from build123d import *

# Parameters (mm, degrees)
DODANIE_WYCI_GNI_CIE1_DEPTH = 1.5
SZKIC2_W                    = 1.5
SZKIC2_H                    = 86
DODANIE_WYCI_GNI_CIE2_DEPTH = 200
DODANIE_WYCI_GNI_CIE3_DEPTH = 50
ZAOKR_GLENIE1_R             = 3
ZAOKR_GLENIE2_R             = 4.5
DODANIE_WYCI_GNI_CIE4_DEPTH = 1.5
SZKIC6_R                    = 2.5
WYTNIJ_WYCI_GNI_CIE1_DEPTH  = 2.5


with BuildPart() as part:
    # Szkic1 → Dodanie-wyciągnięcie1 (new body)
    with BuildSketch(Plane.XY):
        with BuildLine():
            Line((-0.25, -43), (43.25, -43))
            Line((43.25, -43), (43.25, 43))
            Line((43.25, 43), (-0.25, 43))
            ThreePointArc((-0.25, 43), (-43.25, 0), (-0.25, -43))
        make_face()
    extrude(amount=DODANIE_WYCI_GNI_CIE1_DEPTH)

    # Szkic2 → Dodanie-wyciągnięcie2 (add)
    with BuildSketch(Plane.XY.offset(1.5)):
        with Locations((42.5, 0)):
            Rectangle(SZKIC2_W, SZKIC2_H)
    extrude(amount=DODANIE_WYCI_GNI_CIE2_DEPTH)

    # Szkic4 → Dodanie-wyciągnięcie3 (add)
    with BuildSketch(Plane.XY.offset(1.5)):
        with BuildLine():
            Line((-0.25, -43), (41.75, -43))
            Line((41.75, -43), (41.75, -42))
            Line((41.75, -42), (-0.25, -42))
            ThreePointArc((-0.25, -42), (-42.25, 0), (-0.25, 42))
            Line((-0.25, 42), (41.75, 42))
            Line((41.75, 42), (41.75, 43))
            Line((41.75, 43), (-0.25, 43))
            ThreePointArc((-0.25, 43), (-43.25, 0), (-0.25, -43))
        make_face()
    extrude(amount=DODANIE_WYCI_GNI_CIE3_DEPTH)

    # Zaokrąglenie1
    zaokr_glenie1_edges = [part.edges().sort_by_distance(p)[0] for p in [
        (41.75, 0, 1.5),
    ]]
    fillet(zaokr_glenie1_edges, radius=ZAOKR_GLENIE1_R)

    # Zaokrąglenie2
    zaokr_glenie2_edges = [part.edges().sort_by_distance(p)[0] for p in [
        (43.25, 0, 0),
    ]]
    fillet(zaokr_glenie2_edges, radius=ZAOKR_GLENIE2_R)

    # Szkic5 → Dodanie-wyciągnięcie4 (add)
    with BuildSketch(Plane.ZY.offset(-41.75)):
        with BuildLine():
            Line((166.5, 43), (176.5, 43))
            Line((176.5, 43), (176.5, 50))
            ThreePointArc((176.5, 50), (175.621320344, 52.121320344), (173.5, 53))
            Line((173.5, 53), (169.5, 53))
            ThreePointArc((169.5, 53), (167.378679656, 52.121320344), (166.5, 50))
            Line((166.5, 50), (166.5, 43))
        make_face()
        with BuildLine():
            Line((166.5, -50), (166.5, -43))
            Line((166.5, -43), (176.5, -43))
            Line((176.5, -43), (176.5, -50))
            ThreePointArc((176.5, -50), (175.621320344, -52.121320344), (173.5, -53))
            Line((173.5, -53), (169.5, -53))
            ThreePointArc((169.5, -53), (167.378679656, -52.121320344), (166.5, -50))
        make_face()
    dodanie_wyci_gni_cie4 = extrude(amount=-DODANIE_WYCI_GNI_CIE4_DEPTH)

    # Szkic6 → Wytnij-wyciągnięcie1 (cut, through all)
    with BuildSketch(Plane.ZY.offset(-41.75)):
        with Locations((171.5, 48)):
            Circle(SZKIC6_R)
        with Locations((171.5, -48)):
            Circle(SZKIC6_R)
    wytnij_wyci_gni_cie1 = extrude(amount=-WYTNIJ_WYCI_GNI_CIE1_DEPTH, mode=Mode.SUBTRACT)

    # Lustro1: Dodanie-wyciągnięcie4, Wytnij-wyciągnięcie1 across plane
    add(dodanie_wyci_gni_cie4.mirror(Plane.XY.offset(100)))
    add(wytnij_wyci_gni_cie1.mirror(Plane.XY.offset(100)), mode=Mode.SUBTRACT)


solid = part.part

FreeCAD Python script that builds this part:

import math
import FreeCAD as App
import Part
import Sketcher
from FreeCAD import Vector
Q = App.Units.Quantity


def edges_at(feature, points):
    """Names of the edges that pass closest to the given points."""
    edges = feature.Shape.Edges
    near = lambda p: min(range(len(edges)), key=lambda i: edges[i].distToShape(Part.Vertex(*p))[0])
    return sorted({f"Edge{near(p) + 1}" for p in points})


def add_polygon(sketch, points):
    """Adds a closed chain of lines whose ends are joined by coincident constraints."""
    first, n = sketch.GeometryCount, len(points)
    for a, b in zip(points, points[1:] + points[:1]):
        sketch.addGeometry(Part.LineSegment(App.Vector(*a, 0), App.Vector(*b, 0)), False)
    for i in range(n):
        sketch.addConstraint(Sketcher.Constraint("Coincident", first + i, 2, first + (i + 1) % n, 1))

doc = App.newDocument("Part")
body = doc.addObject("PartDesign::Body", "Body")

# Sketch on XY plane
sketch1 = body.newObject("Sketcher::SketchObject", "Sketch")
sketch1.AttachmentSupport = (doc.getObject("XY_Plane"), [""])
sketch1.MapMode = "FlatFace"
sketch1.addGeometry([
    Part.LineSegment(Vector(0, -43, 0), Vector(43, -43, 0)),
    Part.LineSegment(Vector(43, -43, 0), Vector(43, 43, 0)),
    Part.LineSegment(Vector(43, 43, 0), Vector(0, 43, 0)),
    Part.ArcOfCircle(Part.Circle(Vector(0, 0, 0), Vector(0, 0, 1), 43), math.radians(90), math.radians(270)),
], False)
sketch1.addConstraint([
    Sketcher.Constraint("Coincident", 0, 2, 1, 1),
    Sketcher.Constraint("Coincident", 1, 2, 2, 1),
    Sketcher.Constraint("Tangent", 2, 2, 3, 1),
    Sketcher.Constraint("Tangent", 3, 2, 0, 1),
    Sketcher.Constraint("Horizontal", 0),
    Sketcher.Constraint("Vertical", 1),
    Sketcher.Constraint("Horizontal", 2),
    Sketcher.Constraint("PointOnObject", 3, 3, -1),
    Sketcher.Constraint("Radius", 3, Q("43 mm")),
    Sketcher.Constraint("DistanceX", 0, 1, 0, 2, Q("43.5 mm")),
    Sketcher.Constraint("DistanceX", 3, 3, -1, 1, Q("0.25 mm")),
])
pad1 = body.newObject("PartDesign::Pad", "Pad")
pad1.Profile = sketch1
pad1.Length = 1.5

# Sketch on XY plane
sketch2 = body.newObject("Sketcher::SketchObject", "Sketch001")
sketch2.AttachmentSupport = (doc.getObject("XY_Plane"), [""])
sketch2.MapMode = "FlatFace"
sketch2.AttachmentOffset = App.Placement(Vector(0, 0, 1.5), App.Rotation())
add_polygon(sketch2, [(41.8, 43), (41.8, -43), (43.2, -43), (43.2, 43)])  # lines 0-3
sketch2.addConstraint([
    Sketcher.Constraint("Vertical", 0),
    Sketcher.Constraint("Horizontal", 1),
    Sketcher.Constraint("Vertical", 2),
    Sketcher.Constraint("Horizontal", 3),
    Sketcher.Constraint("DistanceY", 0, 2, 0, 1, Q("86 mm")),
    Sketcher.Constraint("DistanceX", 1, 1, 1, 2, Q("1.5 mm")),
    Sketcher.Constraint("DistanceY", 0, 2, -1, 1, Q("43 mm")),
    Sketcher.Constraint("DistanceX", -1, 1, 0, 2, Q("41.75 mm")),
])
pad2 = body.newObject("PartDesign::Pad", "Pad001")
pad2.Profile = sketch2
pad2.Length = 200

# Sketch on XY plane
sketch3 = body.newObject("Sketcher::SketchObject", "Sketch002")
sketch3.AttachmentSupport = (doc.getObject("XY_Plane"), [""])
sketch3.MapMode = "FlatFace"
sketch3.AttachmentOffset = App.Placement(Vector(0, 0, 1.5), App.Rotation())
sketch3.addGeometry([
    Part.LineSegment(Vector(-0.2, -43, 0), Vector(41.8, -43, 0)),  # 0
    Part.LineSegment(Vector(41.8, -43, 0), Vector(41.8, -42, 0)),  # 1
    Part.LineSegment(Vector(41.8, -42, 0), Vector(-0.2, -42, 0)),  # 2
    Part.ArcOfCircle(Part.Circle(Vector(-0.2, 0, 0), Vector(0, 0, 1), 42), math.radians(90), math.radians(270)),  # 3
    Part.LineSegment(Vector(-0.2, 42, 0), Vector(41.8, 42, 0)),  # 4
    Part.LineSegment(Vector(41.8, 42, 0), Vector(41.8, 43, 0)),  # 5
    Part.LineSegment(Vector(41.8, 43, 0), Vector(-0.2, 43, 0)),  # 6
    Part.ArcOfCircle(Part.Circle(Vector(-0.2, 0, 0), Vector(0, 0, 1), 43), math.radians(90), math.radians(270)),  # 7
], False)
sketch3.addConstraint([
    Sketcher.Constraint("Coincident", 0, 2, 1, 1),
    Sketcher.Constraint("Coincident", 1, 2, 2, 1),
    Sketcher.Constraint("Tangent", 2, 2, 3, 2),
    Sketcher.Constraint("Tangent", 3, 1, 4, 1),
    Sketcher.Constraint("Coincident", 4, 2, 5, 1),
    Sketcher.Constraint("Coincident", 5, 2, 6, 1),
    Sketcher.Constraint("Tangent", 6, 2, 7, 1),
    Sketcher.Constraint("Tangent", 7, 2, 0, 1),
    Sketcher.Constraint("Horizontal", 0),
    Sketcher.Constraint("Vertical", 1),
    Sketcher.Constraint("Horizontal", 2),
    Sketcher.Constraint("Horizontal", 4),
    Sketcher.Constraint("Vertical", 5),
    Sketcher.Constraint("Horizontal", 6),
    Sketcher.Constraint("Coincident", 7, 3, 3, 3),
    Sketcher.Constraint("Symmetric", 1, 2, 4, 2, -1),
    Sketcher.Constraint("Radius", 3, Q("42 mm")),
    Sketcher.Constraint("Radius", 7, Q("43 mm")),
    Sketcher.Constraint("DistanceX", 0, 1, 0, 2, Q("42 mm")),
    Sketcher.Constraint("DistanceX", 3, 3, -1, 1, Q("0.25 mm")),
])
pad3 = body.newObject("PartDesign::Pad", "Pad002")
pad3.Profile = sketch3
pad3.Length = 50
doc.recompute()

fillet = body.newObject("PartDesign::Fillet", "Fillet")
fillet.Base = (pad3, edges_at(pad3, [(41.75, 0, 1.5)]))
fillet.Radius = 3
doc.recompute()

fillet2 = body.newObject("PartDesign::Fillet", "Fillet001")
fillet2.Base = (fillet, edges_at(fillet, [(43.25, 0, 0)]))
fillet2.Radius = 4.5

# Sketch on YZ plane
sketch4 = body.newObject("Sketcher::SketchObject", "Sketch003")
sketch4.AttachmentSupport = (doc.getObject("YZ_Plane"), [""])
sketch4.MapMode = "FlatFace"
sketch4.AttachmentOffset = App.Placement(Vector(0, 0, 41.75), App.Rotation())
sketch4.addGeometry([
    Part.LineSegment(Vector(43, 166.5, 0), Vector(43, 176.5, 0)),  # 0
    Part.LineSegment(Vector(43, 176.5, 0), Vector(50, 176.5, 0)),  # 1
    Part.ArcOfCircle(Part.Circle(Vector(50, 173.5, 0), Vector(0, 0, 1), 3), math.radians(0), math.radians(90)),  # 2
    Part.LineSegment(Vector(53, 173.5, 0), Vector(53, 169.5, 0)),  # 3
    Part.ArcOfCircle(Part.Circle(Vector(50, 169.5, 0), Vector(0, 0, 1), 3), math.radians(-90), math.radians(0)),  # 4
    Part.LineSegment(Vector(50, 166.5, 0), Vector(43, 166.5, 0)),  # 5
    Part.LineSegment(Vector(-43, 166.5, 0), Vector(-50, 166.5, 0)),  # 6
    Part.ArcOfCircle(Part.Circle(Vector(-50, 169.5, 0), Vector(0, 0, 1), 3), math.radians(180), math.radians(270)),  # 7
    Part.LineSegment(Vector(-53, 169.5, 0), Vector(-53, 173.5, 0)),  # 8
    Part.ArcOfCircle(Part.Circle(Vector(-50, 173.5, 0), Vector(0, 0, 1), 3), math.radians(90), math.radians(180)),  # 9
    Part.LineSegment(Vector(-50, 176.5, 0), Vector(-43, 176.5, 0)),  # 10
    Part.LineSegment(Vector(-43, 176.5, 0), Vector(-43, 166.5, 0)),  # 11
], False)
sketch4.addConstraint([
    Sketcher.Constraint("Coincident", 0, 2, 1, 1),
    Sketcher.Constraint("Tangent", 1, 2, 2, 2),
    Sketcher.Constraint("Tangent", 2, 1, 3, 1),
    Sketcher.Constraint("Tangent", 3, 2, 4, 2),
    Sketcher.Constraint("Tangent", 4, 1, 5, 1),
    Sketcher.Constraint("Coincident", 5, 2, 0, 1),
    Sketcher.Constraint("Tangent", 6, 2, 7, 2),
    Sketcher.Constraint("Tangent", 7, 1, 8, 1),
    Sketcher.Constraint("Tangent", 8, 2, 9, 2),
    Sketcher.Constraint("Tangent", 9, 1, 10, 1),
    Sketcher.Constraint("Coincident", 10, 2, 11, 1),
    Sketcher.Constraint("Coincident", 11, 2, 6, 1),
    Sketcher.Constraint("Vertical", 0),
    Sketcher.Constraint("Horizontal", 1),
    Sketcher.Constraint("Vertical", 3),
    Sketcher.Constraint("Horizontal", 5),
    Sketcher.Constraint("Horizontal", 6),
    Sketcher.Constraint("Vertical", 8),
    Sketcher.Constraint("Horizontal", 10),
    Sketcher.Constraint("Vertical", 11),
    Sketcher.Constraint("Equal", 2, 4),
    Sketcher.Constraint("Equal", 4, 7),
    Sketcher.Constraint("Equal", 7, 9),
    Sketcher.Constraint("Symmetric", 4, 3, 7, 3, -2),
    Sketcher.Constraint("Symmetric", 0, 2, 10, 2, -2),
    Sketcher.Constraint("Radius", 2, Q("3 mm")),
    Sketcher.Constraint("DistanceX", 1, 1, 1, 2, Q("7 mm")),
    Sketcher.Constraint("DistanceY", 0, 1, 0, 2, Q("10 mm")),
    Sketcher.Constraint("DistanceX", -1, 1, 2, 3, Q("50 mm")),
    Sketcher.Constraint("DistanceY", -1, 1, 2, 3, Q("173.5 mm")),
])
pad4 = body.newObject("PartDesign::Pad", "Pad003")
pad4.Profile = sketch4
pad4.Length = 1.5

# Sketch on YZ plane
sketch5 = body.newObject("Sketcher::SketchObject", "Sketch004")
sketch5.AttachmentSupport = (doc.getObject("YZ_Plane"), [""])
sketch5.MapMode = "FlatFace"
sketch5.AttachmentOffset = App.Placement(Vector(0, 0, 41.75), App.Rotation())
sketch5.addGeometry([
    Part.Circle(Vector(48, 171.5, 0), Vector(0, 0, 1), 2.5),
    Part.Circle(Vector(-48, 171.5, 0), Vector(0, 0, 1), 2.5),
], False)
sketch5.addConstraint([
    Sketcher.Constraint("Equal", 0, 1),
    Sketcher.Constraint("Symmetric", 0, 3, 1, 3, -2),
    Sketcher.Constraint("Diameter", 0, Q("5 mm")),
    Sketcher.Constraint("DistanceX", -1, 1, 0, 3, Q("48 mm")),
    Sketcher.Constraint("DistanceY", -1, 1, 0, 3, Q("171.5 mm")),
])
pocket1 = body.newObject("PartDesign::Pocket", "Pocket")
pocket1.Profile = sketch5
pocket1.Type = "ThroughAll"
pocket1.Reversed = True
doc.recompute()

datumplane = body.newObject("PartDesign::Plane", "DatumPlane")
datumplane.AttachmentSupport = (doc.getObject("XY_Plane"), [""])
datumplane.MapMode = "FlatFace"
datumplane.AttachmentOffset = App.Placement(Vector(0, 0, 100), App.Rotation())
mirrored = body.newObject("PartDesign::Mirrored", "Mirrored")
mirrored.Originals = [pad4, pocket1]
mirrored.MirrorPlane = (datumplane, [""])
body.Tip = mirrored

doc.recompute()
